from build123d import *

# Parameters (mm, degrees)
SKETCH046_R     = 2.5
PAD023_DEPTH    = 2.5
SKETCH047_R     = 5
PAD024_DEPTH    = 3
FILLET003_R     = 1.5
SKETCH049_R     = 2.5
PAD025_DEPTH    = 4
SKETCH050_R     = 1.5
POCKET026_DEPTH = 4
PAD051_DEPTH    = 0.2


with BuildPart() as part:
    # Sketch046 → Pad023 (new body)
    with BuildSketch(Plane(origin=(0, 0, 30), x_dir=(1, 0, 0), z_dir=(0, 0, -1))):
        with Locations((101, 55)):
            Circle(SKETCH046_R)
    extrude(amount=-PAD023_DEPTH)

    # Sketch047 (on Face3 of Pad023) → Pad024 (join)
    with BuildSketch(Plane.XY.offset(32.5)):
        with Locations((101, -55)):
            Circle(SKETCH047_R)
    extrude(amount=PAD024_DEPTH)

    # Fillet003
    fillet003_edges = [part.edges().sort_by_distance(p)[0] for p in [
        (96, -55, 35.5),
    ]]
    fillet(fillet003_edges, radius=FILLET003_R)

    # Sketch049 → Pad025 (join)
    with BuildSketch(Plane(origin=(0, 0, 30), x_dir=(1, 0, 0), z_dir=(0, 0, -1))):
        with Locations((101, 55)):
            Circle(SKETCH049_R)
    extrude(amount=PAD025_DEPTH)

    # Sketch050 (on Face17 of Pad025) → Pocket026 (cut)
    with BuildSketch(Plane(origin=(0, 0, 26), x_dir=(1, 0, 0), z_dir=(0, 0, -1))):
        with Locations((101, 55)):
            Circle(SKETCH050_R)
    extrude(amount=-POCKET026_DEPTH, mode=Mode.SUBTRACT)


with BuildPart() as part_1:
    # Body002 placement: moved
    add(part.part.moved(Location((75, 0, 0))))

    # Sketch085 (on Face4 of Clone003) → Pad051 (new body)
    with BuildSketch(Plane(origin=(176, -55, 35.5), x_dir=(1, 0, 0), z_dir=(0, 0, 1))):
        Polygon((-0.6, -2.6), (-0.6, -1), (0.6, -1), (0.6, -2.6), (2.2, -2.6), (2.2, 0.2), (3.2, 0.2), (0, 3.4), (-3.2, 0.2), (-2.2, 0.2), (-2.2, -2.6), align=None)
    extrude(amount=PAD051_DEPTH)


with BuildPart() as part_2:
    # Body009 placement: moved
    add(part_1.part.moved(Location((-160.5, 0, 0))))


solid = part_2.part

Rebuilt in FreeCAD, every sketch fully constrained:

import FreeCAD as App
import Part
import Sketcher
from FreeCAD import Vector
Q = App.Units.Quantity


def edges_at(feature, points):
    """Names of the edges that pass closest to the given points."""
    edges = feature.Shape.Edges
    near = lambda p: min(range(len(edges)), key=lambda i: edges[i].distToShape(Part.Vertex(*p))[0])
    return sorted({f"Edge{near(p) + 1}" for p in points})


def add_polygon(sketch, points):
    """Adds a closed chain of lines whose ends are joined by coincident constraints."""
    first, n = sketch.GeometryCount, len(points)
    for a, b in zip(points, points[1:] + points[:1]):
        sketch.addGeometry(Part.LineSegment(App.Vector(*a, 0), App.Vector(*b, 0)), False)
    for i in range(n):
        sketch.addConstraint(Sketcher.Constraint("Coincident", first + i, 2, first + (i + 1) % n, 1))

doc = App.newDocument("Part")
params = doc.addObject("Spreadsheet::Sheet", "Params")
for row, (alias, value) in enumerate([
    ("sketch1_diameter", "5 mm"),
    ("pad1_length", "2.5 mm"),
    ("sketch2_diameter", "10 mm"),
    ("pad2_length", "3 mm"),
    ("fillet_radius", "1.5 mm"),
    ("sketch3_diameter", "5 mm"),
    ("pad3_length", "4 mm"),
    ("sketch4_diameter", "3 mm"),
    ("pocket1_length", "4 mm"),
    ("sketch5_width", "1 mm"),
    ("sketch5_width2", "1.2 mm"),
    ("sketch5_width3", "1.6 mm"),
    ("sketch5_height", "2.8 mm"),
    ("pad4_length", "0.2 mm"),
], start=1):
    params.set(f"A{row}", alias)
    params.set(f"B{row}", "=" + value)
    params.setAlias(f"B{row}", alias)

body = doc.addObject("PartDesign::Body", "Body")

sketch1 = body.newObject("Sketcher::SketchObject", "Sketch")
sketch1.AttachmentSupport = (doc.getObject("XY_Plane"), [""])
sketch1.MapMode = "FlatFace"
sketch1.AttachmentOffset = App.Placement(Vector(0, 0, 30), App.Rotation())
sketch1.addGeometry(Part.Circle(Vector(101, -55, 0), Vector(0, 0, 1), 2.5), False)
sketch1.addConstraint(Sketcher.Constraint("Diameter", 0, Q("5 mm")))
sketch1.addConstraint(Sketcher.Constraint("DistanceX", -1, 1, 0, 3, Q("101 mm")))
sketch1.addConstraint(Sketcher.Constraint("DistanceY", 0, 3, -1, 1, Q("55 mm")))
sketch1.setExpression("Constraints[0]", "Params.sketch1_diameter")
pad1 = body.newObject("PartDesign::Pad", "Pad")
pad1.Profile = sketch1
pad1.setExpression("Length", "Params.pad1_length")

sketch2 = body.newObject("Sketcher::SketchObject", "Sketch001")
sketch2.AttachmentSupport = (doc.getObject("XY_Plane"), [""])
sketch2.MapMode = "FlatFace"
sketch2.AttachmentOffset = App.Placement(Vector(0, 0, 32.5), App.Rotation())
sketch2.addGeometry(Part.Circle(Vector(101, -55, 0), Vector(0, 0, 1), 5), False)
sketch2.addConstraint(Sketcher.Constraint("Diameter", 0, Q("10 mm")))
sketch2.addConstraint(Sketcher.Constraint("DistanceX", -1, 1, 0, 3, Q("101 mm")))
sketch2.addConstraint(Sketcher.Constraint("DistanceY", 0, 3, -1, 1, Q("55 mm")))
sketch2.setExpression("Constraints[0]", "Params.sketch2_diameter")
pad2 = body.newObject("PartDesign::Pad", "Pad001")
pad2.Profile = sketch2
pad2.setExpression("Length", "Params.pad2_length")
doc.recompute()

fillet = body.newObject("PartDesign::Fillet", "Fillet")
fillet.Base = (pad2, edges_at(pad2, [(96, -55, 35.5)]))
fillet.setExpression("Radius", "Params.fillet_radius")

sketch3 = body.newObject("Sketcher::SketchObject", "Sketch002")
sketch3.AttachmentSupport = (doc.getObject("XY_Plane"), [""])
sketch3.MapMode = "FlatFace"
sketch3.AttachmentOffset = App.Placement(Vector(0, 0, 30), App.Rotation())
sketch3.addGeometry(Part.Circle(Vector(101, -55, 0), Vector(0, 0, 1), 2.5), False)
sketch3.addConstraint(Sketcher.Constraint("Diameter", 0, Q("5 mm")))
sketch3.addConstraint(Sketcher.Constraint("DistanceX", -1, 1, 0, 3, Q("101 mm")))
sketch3.addConstraint(Sketcher.Constraint("DistanceY", 0, 3, -1, 1, Q("55 mm")))
sketch3.setExpression("Constraints[0]", "Params.sketch3_diameter")
pad3 = body.newObject("PartDesign::Pad", "Pad002")
pad3.Profile = sketch3
pad3.setExpression("Length", "Params.pad3_length")
pad3.Reversed = True

sketch4 = body.newObject("Sketcher::SketchObject", "Sketch003")
sketch4.AttachmentSupport = (doc.getObject("XY_Plane"), [""])
sketch4.MapMode = "FlatFace"
sketch4.AttachmentOffset = App.Placement(Vector(0, 0, 26), App.Rotation())
sketch4.addGeometry(Part.Circle(Vector(101, -55, 0), Vector(0, 0, 1), 1.5), False)
sketch4.addConstraint(Sketcher.Constraint("Diameter", 0, Q("3 mm")))
sketch4.addConstraint(Sketcher.Constraint("DistanceX", -1, 1, 0, 3, Q("101 mm")))
sketch4.addConstraint(Sketcher.Constraint("DistanceY", 0, 3, -1, 1, Q("55 mm")))
sketch4.setExpression("Constraints[0]", "Params.sketch4_diameter")
pocket1 = body.newObject("PartDesign::Pocket", "Pocket")
pocket1.Profile = sketch4
pocket1.setExpression("Length", "Params.pocket1_length")
pocket1.Reversed = True
body2 = doc.addObject("PartDesign::Body", "Body001")
doc.recompute()

body.Placement = App.Placement(Vector(75, 0, 0), App.Rotation(Vector(0, 0, 1), 0))
boolean = body2.newObject("PartDesign::Boolean", "Boolean")
boolean.Type = "Fuse"
boolean.addObjects([body])

sketch5 = body2.newObject("Sketcher::SketchObject", "Sketch004")
sketch5.AttachmentSupport = (doc.getObject("XY_Plane001"), [""])
sketch5.MapMode = "FlatFace"
sketch5.AttachmentOffset = App.Placement(Vector(0, 0, 35.5), App.Rotation())
add_polygon(sketch5, [(175.4, -57.6), (175.4, -56), (176.6, -56), (176.6, -57.6), (178.2, -57.6), (178.2, -54.8), (179.2, -54.8), (176, -51.6), (172.8, -54.8), (173.8, -54.8), (173.8, -57.6)])
sketch5.addConstraint(Sketcher.Constraint("Vertical", 0))
sketch5.addConstraint(Sketcher.Constraint("Horizontal", 1))
sketch5.addConstraint(Sketcher.Constraint("Vertical", 2))
sketch5.addConstraint(Sketcher.Constraint("Horizontal", 3))
sketch5.addConstraint(Sketcher.Constraint("Vertical", 4))
sketch5.addConstraint(Sketcher.Constraint("Horizontal", 5))
sketch5.addConstraint(Sketcher.Constraint("Horizontal", 8))
sketch5.addConstraint(Sketcher.Constraint("Vertical", 9))
sketch5.addConstraint(Sketcher.Constraint("Horizontal", 10))
sketch5.addConstraint(Sketcher.Constraint("Perpendicular", 6, 7))
sketch5.addConstraint(Sketcher.Constraint("Horizontal", 5, 2, 7, 2))
sketch5.addConstraint(Sketcher.Constraint("Horizontal", 3, 2, 9, 2))
sketch5.addConstraint(Sketcher.Constraint("Equal", 5, 8))
sketch5.addConstraint(Sketcher.Constraint("Equal", 3, 10))
sketch5.addConstraint(Sketcher.Constraint("Equal", 10, 0))
sketch5.addConstraint(Sketcher.Constraint("Equal", 6, 7))
sketch5.addConstraint(Sketcher.Constraint("DistanceX", 5, 1, 5, 2, Q("1 mm")))
sketch5.addConstraint(Sketcher.Constraint("DistanceX", 1, 1, 1, 2, Q("1.2 mm")))
sketch5.addConstraint(Sketcher.Constraint("DistanceX", 3, 1, 3, 2, Q("1.6 mm")))
sketch5.addConstraint(Sketcher.Constraint("DistanceY", 4, 1, 4, 2, Q("2.8 mm")))
sketch5.addConstraint(Sketcher.Constraint("DistanceY", 0, 2, -1, 1, Q("56 mm")))
sketch5.addConstraint(Sketcher.Constraint("DistanceX", -1, 1, 6, 2, Q("176 mm")))
sketch5.setExpression("Constraints[27]", "Params.sketch5_width")
sketch5.setExpression("Constraints[28]", "Params.sketch5_width2")
sketch5.setExpression("Constraints[29]", "Params.sketch5_width3")
sketch5.setExpression("Constraints[30]", "Params.sketch5_height")
pad4 = body2.newObject("PartDesign::Pad", "Pad003")
pad4.Profile = sketch5
pad4.setExpression("Length", "Params.pad4_length")
body3 = doc.addObject("PartDesign::Body", "Body002")
doc.recompute()

body2.Placement = App.Placement(Vector(-160.5, 0, 0), App.Rotation(Vector(0, 0, 1), 0))
boolean2 = body3.newObject("PartDesign::Boolean", "Boolean001")
boolean2.Type = "Fuse"
boolean2.addObjects([body2])

doc.recompute()
